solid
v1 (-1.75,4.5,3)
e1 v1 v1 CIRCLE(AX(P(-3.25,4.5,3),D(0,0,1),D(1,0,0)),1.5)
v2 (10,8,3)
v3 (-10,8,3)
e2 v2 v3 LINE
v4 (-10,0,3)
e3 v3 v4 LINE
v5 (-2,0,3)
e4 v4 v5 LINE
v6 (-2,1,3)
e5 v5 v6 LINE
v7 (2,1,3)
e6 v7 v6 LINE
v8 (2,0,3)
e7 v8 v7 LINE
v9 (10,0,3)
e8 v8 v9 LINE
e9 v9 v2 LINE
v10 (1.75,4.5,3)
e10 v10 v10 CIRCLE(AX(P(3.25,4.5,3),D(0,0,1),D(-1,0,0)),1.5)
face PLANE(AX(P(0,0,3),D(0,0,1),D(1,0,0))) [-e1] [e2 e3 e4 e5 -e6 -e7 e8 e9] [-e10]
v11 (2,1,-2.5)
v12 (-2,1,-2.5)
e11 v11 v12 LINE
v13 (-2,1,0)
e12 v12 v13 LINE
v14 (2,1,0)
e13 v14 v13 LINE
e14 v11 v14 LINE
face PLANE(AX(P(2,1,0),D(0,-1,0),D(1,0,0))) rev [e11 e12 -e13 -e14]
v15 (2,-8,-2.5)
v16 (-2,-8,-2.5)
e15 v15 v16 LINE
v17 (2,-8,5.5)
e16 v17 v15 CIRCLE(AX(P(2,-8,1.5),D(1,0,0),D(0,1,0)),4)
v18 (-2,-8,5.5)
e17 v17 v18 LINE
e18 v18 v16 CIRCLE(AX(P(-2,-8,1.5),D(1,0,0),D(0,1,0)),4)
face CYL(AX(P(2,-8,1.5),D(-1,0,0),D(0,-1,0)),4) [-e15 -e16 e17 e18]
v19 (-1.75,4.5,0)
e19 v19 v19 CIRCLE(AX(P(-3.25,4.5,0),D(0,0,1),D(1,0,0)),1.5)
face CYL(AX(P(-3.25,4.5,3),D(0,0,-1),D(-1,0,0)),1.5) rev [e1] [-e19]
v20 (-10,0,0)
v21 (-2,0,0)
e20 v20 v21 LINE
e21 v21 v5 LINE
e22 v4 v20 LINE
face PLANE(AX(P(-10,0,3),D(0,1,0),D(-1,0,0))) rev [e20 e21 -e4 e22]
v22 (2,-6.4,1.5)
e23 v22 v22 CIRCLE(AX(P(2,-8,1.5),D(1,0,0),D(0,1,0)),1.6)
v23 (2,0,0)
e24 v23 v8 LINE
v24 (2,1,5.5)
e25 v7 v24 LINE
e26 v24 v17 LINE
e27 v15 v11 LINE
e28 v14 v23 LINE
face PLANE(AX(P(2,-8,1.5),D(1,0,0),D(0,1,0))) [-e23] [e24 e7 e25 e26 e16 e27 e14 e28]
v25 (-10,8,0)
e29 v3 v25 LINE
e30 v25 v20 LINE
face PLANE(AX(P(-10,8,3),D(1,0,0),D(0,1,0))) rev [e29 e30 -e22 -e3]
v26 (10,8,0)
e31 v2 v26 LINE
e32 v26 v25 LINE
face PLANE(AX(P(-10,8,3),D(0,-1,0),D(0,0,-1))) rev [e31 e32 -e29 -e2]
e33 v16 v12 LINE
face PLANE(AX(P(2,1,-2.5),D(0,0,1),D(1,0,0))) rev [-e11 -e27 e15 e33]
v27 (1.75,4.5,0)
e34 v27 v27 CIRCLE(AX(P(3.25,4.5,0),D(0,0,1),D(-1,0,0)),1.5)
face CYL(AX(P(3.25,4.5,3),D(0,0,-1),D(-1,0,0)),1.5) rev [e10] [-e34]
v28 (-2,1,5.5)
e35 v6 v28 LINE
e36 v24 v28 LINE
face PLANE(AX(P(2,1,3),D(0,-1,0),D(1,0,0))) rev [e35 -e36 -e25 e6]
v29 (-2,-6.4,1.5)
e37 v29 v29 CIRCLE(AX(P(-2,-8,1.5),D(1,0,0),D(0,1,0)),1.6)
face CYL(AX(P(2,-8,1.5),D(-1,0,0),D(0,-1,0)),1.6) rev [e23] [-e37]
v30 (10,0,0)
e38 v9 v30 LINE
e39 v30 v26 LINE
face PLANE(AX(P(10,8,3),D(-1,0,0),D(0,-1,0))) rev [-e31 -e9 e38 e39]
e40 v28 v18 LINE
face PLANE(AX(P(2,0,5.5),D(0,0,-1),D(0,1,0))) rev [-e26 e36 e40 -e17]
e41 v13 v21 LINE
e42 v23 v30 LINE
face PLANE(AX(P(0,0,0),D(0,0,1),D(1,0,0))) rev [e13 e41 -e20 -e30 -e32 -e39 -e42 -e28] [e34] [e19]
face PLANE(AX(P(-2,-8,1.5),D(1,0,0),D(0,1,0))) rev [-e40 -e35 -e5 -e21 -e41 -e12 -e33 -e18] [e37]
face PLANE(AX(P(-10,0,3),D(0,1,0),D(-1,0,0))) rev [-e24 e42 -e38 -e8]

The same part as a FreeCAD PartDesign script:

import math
import FreeCAD as App
import Part
import Sketcher
from FreeCAD import Vector
Q = App.Units.Quantity


def add_polygon(sketch, points):
    """Adds a closed chain of lines whose ends are joined by coincident constraints."""
    first, n = sketch.GeometryCount, len(points)
    for a, b in zip(points, points[1:] + points[:1]):
        sketch.addGeometry(Part.LineSegment(App.Vector(*a, 0), App.Vector(*b, 0)), False)
    for i in range(n):
        sketch.addConstraint(Sketcher.Constraint("Coincident", first + i, 2, first + (i + 1) % n, 1))

doc = App.newDocument("Part")
body = doc.addObject("PartDesign::Body", "Body")

sketch1 = body.newObject("Sketcher::SketchObject", "Sketch")
sketch1.AttachmentSupport = (doc.getObject("XY_Plane"), [""])
sketch1.MapMode = "FlatFace"
add_polygon(sketch1, [(-10, 8), (-10, 0), (10, 0), (10, 8)])
sketch1.addGeometry(Part.Circle(Vector(-3.2, 4.5, 0), Vector(0, 0, 1), 1.5), False)
sketch1.addGeometry(Part.Circle(Vector(3.2, 4.5, 0), Vector(0, 0, 1), 1.5), False)
sketch1.addConstraint([
    Sketcher.Constraint("Vertical", 0),
    Sketcher.Constraint("Horizontal", 1),
    Sketcher.Constraint("Vertical", 2),
    Sketcher.Constraint("Horizontal", 3),
    Sketcher.Constraint("Equal", 4, 5),
    Sketcher.Constraint("Symmetric", 0, 2, 1, 2, -1, 1),
    Sketcher.Constraint("Symmetric", 4, 3, 5, 3, -2),
    Sketcher.Constraint("Diameter", 4, Q("3 mm")),
    Sketcher.Constraint("DistanceX", 1, 1, 1, 2, Q("20 mm")),
    Sketcher.Constraint("DistanceY", 0, 2, 0, 1, Q("8 mm")),
    Sketcher.Constraint("DistanceY", -1, 1, 4, 3, Q("4.5 mm")),
    Sketcher.Constraint("DistanceX", 4, 3, 5, 3, Q("6.5 mm")),
])
pad1 = body.newObject("PartDesign::Pad", "Pad")
pad1.Profile = sketch1
pad1.Length = 3

sketch2 = body.newObject("Sketcher::SketchObject", "Sketch001")
sketch2.AttachmentSupport = (doc.getObject("YZ_Plane"), [""])
sketch2.MapMode = "FlatFace"
sketch2.AttachmentOffset = App.Placement(Vector(0, 0, -2), App.Rotation())
sketch2.addGeometry([
    Part.ArcOfCircle(Part.Circle(Vector(-8, 1.5, 0), Vector(0, 0, 1), 4), math.radians(90), math.radians(270)),
    Part.LineSegment(Vector(-8, -2.5, 0), Vector(1, -2.5, 0)),
    Part.LineSegment(Vector(1, -2.5, 0), Vector(1, 0, 0)),
    Part.LineSegment(Vector(1, 0, 0), Vector(0, 0, 0)),
    Part.LineSegment(Vector(0, 0, 0), Vector(0, 3, 0)),
    Part.LineSegment(Vector(0, 3, 0), Vector(1, 3, 0)),
    Part.LineSegment(Vector(1, 3, 0), Vector(1, 5.5, 0)),
    Part.LineSegment(Vector(1, 5.5, 0), Vector(-8, 5.5, 0)),
    Part.Circle(Vector(-8, 1.5, 0), Vector(0, 0, 1), 1.6),
], False)
sketch2.addConstraint([
    Sketcher.Constraint("Tangent", 0, 2, 1, 1),
    Sketcher.Constraint("Coincident", 1, 2, 2, 1),
    Sketcher.Constraint("Coincident", 2, 2, 3, 1),
    Sketcher.Constraint("Coincident", 3, 2, 4, 1),
    Sketcher.Constraint("Coincident", 4, 2, 5, 1),
    Sketcher.Constraint("Coincident", 5, 2, 6, 1),
    Sketcher.Constraint("Coincident", 6, 2, 7, 1),
    Sketcher.Constraint("Tangent", 7, 2, 0, 1),
    Sketcher.Constraint("Horizontal", 1),
    Sketcher.Constraint("Vertical", 2),
    Sketcher.Constraint("Horizontal", 3),
    Sketcher.Constraint("Vertical", 4),
    Sketcher.Constraint("Horizontal", 5),
    Sketcher.Constraint("Vertical", 6),
    Sketcher.Constraint("Horizontal", 7),
    Sketcher.Constraint("Coincident", 3, 2, -1, 1),
    Sketcher.Constraint("Coincident", 8, 3, 0, 3),
    Sketcher.Constraint("Vertical", 2, 2, 5, 2),
    Sketcher.Constraint("Equal", 2, 6),
    Sketcher.Constraint("Radius", 0, Q("4 mm")),
    Sketcher.Constraint("Diameter", 8, Q("3.2 mm")),
    Sketcher.Constraint("DistanceX", 1, 1, 1, 2, Q("9 mm")),
    Sketcher.Constraint("DistanceX", 3, 2, 3, 1, Q("1 mm")),
    Sketcher.Constraint("DistanceY", 4, 1, 4, 2, Q("3 mm")),
])
pad2 = body.newObject("PartDesign::Pad", "Pad001")
pad2.Profile = sketch2
pad2.Length = 4

doc.recompute()
